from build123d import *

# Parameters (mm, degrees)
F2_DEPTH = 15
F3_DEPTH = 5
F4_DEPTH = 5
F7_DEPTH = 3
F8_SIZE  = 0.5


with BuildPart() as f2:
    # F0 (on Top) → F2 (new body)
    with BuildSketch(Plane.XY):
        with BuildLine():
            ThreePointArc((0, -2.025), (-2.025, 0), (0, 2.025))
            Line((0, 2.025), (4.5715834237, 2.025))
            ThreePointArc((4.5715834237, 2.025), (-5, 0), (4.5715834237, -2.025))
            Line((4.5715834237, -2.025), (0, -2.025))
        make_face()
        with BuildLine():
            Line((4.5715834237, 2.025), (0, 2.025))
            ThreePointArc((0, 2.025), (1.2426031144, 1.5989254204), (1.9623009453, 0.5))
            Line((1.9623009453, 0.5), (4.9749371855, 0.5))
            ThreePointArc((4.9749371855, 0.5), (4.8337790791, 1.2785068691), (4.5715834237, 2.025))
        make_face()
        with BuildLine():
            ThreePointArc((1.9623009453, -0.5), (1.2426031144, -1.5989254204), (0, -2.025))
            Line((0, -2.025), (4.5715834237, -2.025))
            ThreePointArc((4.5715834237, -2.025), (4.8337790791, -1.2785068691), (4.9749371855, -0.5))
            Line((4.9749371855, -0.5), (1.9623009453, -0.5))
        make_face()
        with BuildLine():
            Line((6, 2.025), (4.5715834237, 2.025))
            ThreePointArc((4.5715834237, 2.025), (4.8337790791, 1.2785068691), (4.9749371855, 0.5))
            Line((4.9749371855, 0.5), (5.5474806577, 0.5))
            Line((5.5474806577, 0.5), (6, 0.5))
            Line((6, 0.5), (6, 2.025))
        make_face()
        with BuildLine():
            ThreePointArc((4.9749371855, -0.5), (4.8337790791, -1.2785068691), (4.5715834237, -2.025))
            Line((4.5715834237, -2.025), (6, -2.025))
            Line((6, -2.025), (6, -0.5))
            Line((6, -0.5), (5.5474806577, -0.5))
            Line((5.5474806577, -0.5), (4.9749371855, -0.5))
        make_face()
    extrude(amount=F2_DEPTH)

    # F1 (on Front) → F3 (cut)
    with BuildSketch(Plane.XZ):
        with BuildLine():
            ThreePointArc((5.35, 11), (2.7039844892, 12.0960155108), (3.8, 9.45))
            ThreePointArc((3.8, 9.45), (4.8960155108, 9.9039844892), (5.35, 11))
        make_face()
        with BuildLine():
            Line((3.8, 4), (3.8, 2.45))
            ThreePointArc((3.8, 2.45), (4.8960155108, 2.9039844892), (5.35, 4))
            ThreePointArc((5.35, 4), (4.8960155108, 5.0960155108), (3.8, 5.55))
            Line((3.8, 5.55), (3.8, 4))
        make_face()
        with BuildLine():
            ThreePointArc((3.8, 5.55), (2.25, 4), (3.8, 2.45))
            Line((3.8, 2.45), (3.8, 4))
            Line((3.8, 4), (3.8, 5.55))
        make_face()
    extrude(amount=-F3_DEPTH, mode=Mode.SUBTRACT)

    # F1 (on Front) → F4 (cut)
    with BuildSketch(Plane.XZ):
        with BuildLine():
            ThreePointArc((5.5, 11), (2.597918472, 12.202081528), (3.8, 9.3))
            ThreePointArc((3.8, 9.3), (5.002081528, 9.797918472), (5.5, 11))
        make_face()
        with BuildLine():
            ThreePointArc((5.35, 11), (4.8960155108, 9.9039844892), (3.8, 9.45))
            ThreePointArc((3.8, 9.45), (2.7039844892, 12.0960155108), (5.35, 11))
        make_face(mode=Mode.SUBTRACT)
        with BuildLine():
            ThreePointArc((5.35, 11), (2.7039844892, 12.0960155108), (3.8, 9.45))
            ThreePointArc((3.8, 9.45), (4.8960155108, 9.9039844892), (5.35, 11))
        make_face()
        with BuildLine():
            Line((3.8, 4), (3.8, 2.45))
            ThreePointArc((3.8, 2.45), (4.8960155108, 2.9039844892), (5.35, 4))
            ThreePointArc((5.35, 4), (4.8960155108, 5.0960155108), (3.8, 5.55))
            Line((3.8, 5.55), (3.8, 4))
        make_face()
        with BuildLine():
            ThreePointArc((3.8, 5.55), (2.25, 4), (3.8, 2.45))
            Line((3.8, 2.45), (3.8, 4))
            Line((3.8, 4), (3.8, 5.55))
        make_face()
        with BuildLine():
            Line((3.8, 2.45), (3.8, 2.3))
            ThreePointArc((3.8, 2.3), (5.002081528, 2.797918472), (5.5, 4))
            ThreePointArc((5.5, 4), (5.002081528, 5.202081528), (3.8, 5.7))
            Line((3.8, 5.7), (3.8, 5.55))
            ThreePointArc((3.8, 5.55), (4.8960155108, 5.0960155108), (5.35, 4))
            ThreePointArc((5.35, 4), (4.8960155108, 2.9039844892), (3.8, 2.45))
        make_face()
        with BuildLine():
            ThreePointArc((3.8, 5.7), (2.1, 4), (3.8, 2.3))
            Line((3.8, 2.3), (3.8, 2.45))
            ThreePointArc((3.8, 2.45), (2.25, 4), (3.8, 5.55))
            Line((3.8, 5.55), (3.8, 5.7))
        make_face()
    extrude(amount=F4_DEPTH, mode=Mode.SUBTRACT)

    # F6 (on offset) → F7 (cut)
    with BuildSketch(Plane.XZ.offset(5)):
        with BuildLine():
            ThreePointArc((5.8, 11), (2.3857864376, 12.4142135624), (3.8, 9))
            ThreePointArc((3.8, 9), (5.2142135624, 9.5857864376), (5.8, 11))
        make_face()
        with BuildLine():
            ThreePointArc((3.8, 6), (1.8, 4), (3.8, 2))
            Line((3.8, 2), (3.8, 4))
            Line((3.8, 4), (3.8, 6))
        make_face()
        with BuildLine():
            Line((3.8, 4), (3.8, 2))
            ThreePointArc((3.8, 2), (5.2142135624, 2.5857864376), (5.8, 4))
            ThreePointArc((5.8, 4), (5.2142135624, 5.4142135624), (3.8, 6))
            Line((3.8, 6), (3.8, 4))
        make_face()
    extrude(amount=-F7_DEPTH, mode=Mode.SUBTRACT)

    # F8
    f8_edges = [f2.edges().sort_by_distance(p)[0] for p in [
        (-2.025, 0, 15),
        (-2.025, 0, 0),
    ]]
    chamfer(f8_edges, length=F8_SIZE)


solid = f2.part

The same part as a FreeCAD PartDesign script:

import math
import FreeCAD as App
import Part
import Sketcher
from FreeCAD import Vector
Q = App.Units.Quantity


def edges_at(feature, points):
    """Names of the edges that pass closest to the given points."""
    edges = feature.Shape.Edges
    near = lambda p: min(range(len(edges)), key=lambda i: edges[i].distToShape(Part.Vertex(*p))[0])
    return sorted({f"Edge{near(p) + 1}" for p in points})

doc = App.newDocument("Part")
params = doc.addObject("Spreadsheet::Sheet", "Params")
for row, (alias, value) in enumerate([
    ("sketch1_radius", "5 mm"),
    ("pad1_length", "15 mm"),
    ("sketch2_radius", "1.55 mm"),
    ("pocket1_length", "5 mm"),
    ("sketch3_radius", "1.7 mm"),
    ("pocket2_length", "5 mm"),
    ("sketch4_radius", "2 mm"),
    ("pocket3_length", "3 mm"),
    ("chamfer_size", "0.5 mm"),
], start=1):
    params.set(f"A{row}", alias)
    params.set(f"B{row}", "=" + value)
    params.setAlias(f"B{row}", alias)

body = doc.addObject("PartDesign::Body", "Body")

# Sketch on XY plane
sketch1 = body.newObject("Sketcher::SketchObject", "Sketch")
sketch1.AttachmentSupport = (doc.getObject("XY_Plane"), [""])
sketch1.MapMode = "FlatFace"
sketch1.addGeometry([
    Part.ArcOfCircle(Part.Circle(Vector(0, 0, 0), Vector(0, 0, 1), 2), math.radians(90), math.radians(270)),  # 0
    Part.ArcOfCircle(Part.Circle(Vector(0, 0, 0), Vector(0, 0, 1), 2), math.radians(14), math.radians(90)),  # 1
    Part.LineSegment(Vector(2, 0.5, 0), Vector(6, 0.5, 0)),  # 2
    Part.LineSegment(Vector(6, 0.5, 0), Vector(6, 2, 0)),  # 3
    Part.LineSegment(Vector(6, 2, 0), Vector(4.6, 2, 0)),  # 4
    Part.ArcOfCircle(Part.Circle(Vector(0, 0, 0), Vector(0, 0, 1), 5), math.radians(24), math.radians(336)),  # 5
    Part.LineSegment(Vector(4.6, -2, 0), Vector(6, -2, 0)),  # 6
    Part.LineSegment(Vector(6, -2, 0), Vector(6, -0.5, 0)),  # 7
    Part.LineSegment(Vector(6, -0.5, 0), Vector(2, -0.5, 0)),  # 8
    Part.ArcOfCircle(Part.Circle(Vector(0, 0, 0), Vector(0, 0, 1), 2), math.radians(-90), math.radians(-14)),  # 9
], False)
sketch1.addConstraint([
    Sketcher.Constraint("Tangent", 0, 1, 1, 2),
    Sketcher.Constraint("Coincident", 1, 1, 2, 1),
    Sketcher.Constraint("Coincident", 2, 2, 3, 1),
    Sketcher.Constraint("Coincident", 3, 2, 4, 1),
    Sketcher.Constraint("Coincident", 4, 2, 5, 1),
    Sketcher.Constraint("Coincident", 5, 2, 6, 1),
    Sketcher.Constraint("Coincident", 6, 2, 7, 1),
    Sketcher.Constraint("Coincident", 7, 2, 8, 1),
    Sketcher.Constraint("Coincident", 8, 2, 9, 2),
    Sketcher.Constraint("Tangent", 9, 1, 0, 2),
    Sketcher.Constraint("Horizontal", 2),
    Sketcher.Constraint("Vertical", 3),
    Sketcher.Constraint("Horizontal", 4),
    Sketcher.Constraint("Horizontal", 6),
    Sketcher.Constraint("Vertical", 7),
    Sketcher.Constraint("Horizontal", 8),
    Sketcher.Constraint("Coincident", 0, 3, -1, 1),
    Sketcher.Constraint("Coincident", 5, 3, -1, 1),
    Sketcher.Constraint("Equal", 0, 1),
    Sketcher.Constraint("Equal", 1, 9),
    Sketcher.Constraint("Symmetric", 3, 2, 6, 2, -1),
    Sketcher.Constraint("PointOnObject", 0, 1, -2),
    Sketcher.Constraint("PointOnObject", 9, 1, -2),
    Sketcher.Constraint("Horizontal", 0, 1, 3, 2),
    Sketcher.Constraint("Vertical", 1, 1, 8, 2),
    Sketcher.Constraint("Radius", 5, Q("5 mm")),
    Sketcher.Constraint("DistanceX", -1, 1, 2, 2, Q("6 mm")),
    Sketcher.Constraint("Radius", 0, Q("2.025 mm")),
    Sketcher.Constraint("DistanceY", 7, 2, 2, 2, Q("1 mm")),
])
sketch1.setExpression("Constraints[25]", "Params.sketch1_radius")
pad1 = body.newObject("PartDesign::Pad", "Pad")
pad1.Profile = sketch1
pad1.setExpression("Length", "Params.pad1_length")

# Sketch on XZ plane
sketch2 = body.newObject("Sketcher::SketchObject", "Sketch001")
sketch2.AttachmentSupport = (doc.getObject("XZ_Plane"), [""])
sketch2.MapMode = "FlatFace"
sketch2.addGeometry([
    Part.ArcOfCircle(Part.Circle(Vector(3.8, 11, 0), Vector(0, 0, 1), 1.6), math.radians(0), math.radians(270)),  # 0
    Part.ArcOfCircle(Part.Circle(Vector(3.8, 11, 0), Vector(0, 0, 1), 1.6), math.radians(-90), math.radians(0)),  # 1
    Part.ArcOfCircle(Part.Circle(Vector(3.8, 4, 0), Vector(0, 0, 1), 1.6), math.radians(-90), math.radians(0)),  # 2
    Part.ArcOfCircle(Part.Circle(Vector(3.8, 4, 0), Vector(0, 0, 1), 1.6), math.radians(0), math.radians(90)),  # 3
    Part.ArcOfCircle(Part.Circle(Vector(3.8, 4, 0), Vector(0, 0, 1), 1.6), math.radians(90), math.radians(270)),  # 4
], False)
sketch2.addConstraint([
    Sketcher.Constraint("Tangent", 0, 1, 1, 2),
    Sketcher.Constraint("Coincident", 1, 1, 0, 2),
    Sketcher.Constraint("Tangent", 2, 2, 3, 1),
    Sketcher.Constraint("Tangent", 3, 2, 4, 1),
    Sketcher.Constraint("Tangent", 4, 2, 2, 1),
    Sketcher.Constraint("Equal", 1, 2),
    Sketcher.Constraint("Horizontal", 1, 3, 0, 1),
    Sketcher.Constraint("Horizontal", 4, 3, 2, 2),
    Sketcher.Constraint("Vertical", 1, 3, 2, 3),
    Sketcher.Constraint("Vertical", 4, 3, 1, 1),
    Sketcher.Constraint("Vertical", 1, 1, 3, 2),
    Sketcher.Constraint("Vertical", 3, 2, 4, 2),
    Sketcher.Constraint("Radius", 0, Q("1.55 mm")),
    Sketcher.Constraint("DistanceY", -1, 1, 0, 3, Q("11 mm")),
    Sketcher.Constraint("DistanceY", -1, 1, 2, 3, Q("4 mm")),
    Sketcher.Constraint("DistanceX", -1, 1, 0, 3, Q("3.8 mm")),
])
sketch2.setExpression("Constraints[12]", "Params.sketch2_radius")
pocket1 = body.newObject("PartDesign::Pocket", "Pocket")
pocket1.Profile = sketch2
pocket1.setExpression("Length", "Params.pocket1_length")

# Sketch on XZ plane
sketch3 = body.newObject("Sketcher::SketchObject", "Sketch002")
sketch3.AttachmentSupport = (doc.getObject("XZ_Plane"), [""])
sketch3.MapMode = "FlatFace"
sketch3.addGeometry([
    Part.ArcOfCircle(Part.Circle(Vector(3.8, 11, 0), Vector(0, 0, 1), 1.7), math.radians(0), math.radians(270)),  # 0
    Part.ArcOfCircle(Part.Circle(Vector(3.8, 11, 0), Vector(0, 0, 1), 1.7), math.radians(-90), math.radians(0)),  # 1
    Part.ArcOfCircle(Part.Circle(Vector(3.8, 4, 0), Vector(0, 0, 1), 1.7), math.radians(-90), math.radians(0)),  # 2
    Part.ArcOfCircle(Part.Circle(Vector(3.8, 4, 0), Vector(0, 0, 1), 1.7), math.radians(0), math.radians(90)),  # 3
    Part.ArcOfCircle(Part.Circle(Vector(3.8, 4, 0), Vector(0, 0, 1), 1.7), math.radians(90), math.radians(270)),  # 4
], False)
sketch3.addConstraint([
    Sketcher.Constraint("Tangent", 0, 1, 1, 2),
    Sketcher.Constraint("Coincident", 1, 1, 0, 2),
    Sketcher.Constraint("Tangent", 2, 2, 3, 1),
    Sketcher.Constraint("Tangent", 3, 2, 4, 1),
    Sketcher.Constraint("Tangent", 4, 2, 2, 1),
    Sketcher.Constraint("Equal", 1, 2),
    Sketcher.Constraint("Horizontal", 1, 3, 0, 1),
    Sketcher.Constraint("Horizontal", 4, 3, 2, 2),
    Sketcher.Constraint("Vertical", 1, 3, 2, 3),
    Sketcher.Constraint("Vertical", 4, 3, 1, 1),
    Sketcher.Constraint("Vertical", 1, 1, 3, 2),
    Sketcher.Constraint("Vertical", 3, 2, 4, 2),
    Sketcher.Constraint("Radius", 0, Q("1.7 mm")),
    Sketcher.Constraint("DistanceY", -1, 1, 0, 3, Q("11 mm")),
    Sketcher.Constraint("DistanceY", -1, 1, 2, 3, Q("4 mm")),
    Sketcher.Constraint("DistanceX", -1, 1, 0, 3, Q("3.8 mm")),
])
sketch3.setExpression("Constraints[12]", "Params.sketch3_radius")
pocket2 = body.newObject("PartDesign::Pocket", "Pocket001")
pocket2.Profile = sketch3
pocket2.setExpression("Length", "Params.pocket2_length")
pocket2.Reversed = True

# Sketch on XZ plane
sketch4 = body.newObject("Sketcher::SketchObject", "Sketch003")
sketch4.AttachmentSupport = (doc.getObject("XZ_Plane"), [""])
sketch4.MapMode = "FlatFace"
sketch4.AttachmentOffset = App.Placement(Vector(0, 0, 5), App.Rotation())
sketch4.addGeometry([
    Part.ArcOfCircle(Part.Circle(Vector(3.8, 11, 0), Vector(0, 0, 1), 2), math.radians(0), math.radians(270)),  # 0
    Part.ArcOfCircle(Part.Circle(Vector(3.8, 11, 0), Vector(0, 0, 1), 2), math.radians(-90), math.radians(0)),  # 1
    Part.ArcOfCircle(Part.Circle(Vector(3.8, 4, 0), Vector(0, 0, 1), 2), math.radians(90), math.radians(270)),  # 2
    Part.ArcOfCircle(Part.Circle(Vector(3.8, 4, 0), Vector(0, 0, 1), 2), math.radians(-90), math.radians(0)),  # 3
    Part.ArcOfCircle(Part.Circle(Vector(3.8, 4, 0), Vector(0, 0, 1), 2), math.radians(0), math.radians(90)),  # 4
], False)
sketch4.addConstraint([
    Sketcher.Constraint("Tangent", 0, 1, 1, 2),
    Sketcher.Constraint("Coincident", 1, 1, 0, 2),
    Sketcher.Constraint("Tangent", 2, 2, 3, 1),
    Sketcher.Constraint("Tangent", 3, 2, 4, 1),
    Sketcher.Constraint("Tangent", 4, 2, 2, 1),
    Sketcher.Constraint("Equal", 1, 2),
    Sketcher.Constraint("Horizontal", 1, 3, 0, 1),
    Sketcher.Constraint("Horizontal", 4, 3, 3, 2),
    Sketcher.Constraint("Vertical", 1, 3, 2, 3),
    Sketcher.Constraint("Vertical", 4, 3, 1, 1),
    Sketcher.Constraint("Vertical", 1, 1, 2, 2),
    Sketcher.Constraint("Vertical", 2, 2, 4, 2),
    Sketcher.Constraint("Radius", 0, Q("2 mm")),
    Sketcher.Constraint("DistanceY", -1, 1, 0, 3, Q("11 mm")),
    Sketcher.Constraint("DistanceY", -1, 1, 2, 3, Q("4 mm")),
    Sketcher.Constraint("DistanceX", -1, 1, 0, 3, Q("3.8 mm")),
])
sketch4.setExpression("Constraints[12]", "Params.sketch4_radius")
pocket3 = body.newObject("PartDesign::Pocket", "Pocket002")
pocket3.Profile = sketch4
pocket3.setExpression("Length", "Params.pocket3_length")
doc.recompute()

chamfer = body.newObject("PartDesign::Chamfer", "Chamfer")
chamfer.Base = (pocket3, edges_at(pocket3, [(-2.025, 0, 15), (-2.025, 0, 0)]))
chamfer.setExpression("Size", "Params.chamfer_size")

doc.recompute()
